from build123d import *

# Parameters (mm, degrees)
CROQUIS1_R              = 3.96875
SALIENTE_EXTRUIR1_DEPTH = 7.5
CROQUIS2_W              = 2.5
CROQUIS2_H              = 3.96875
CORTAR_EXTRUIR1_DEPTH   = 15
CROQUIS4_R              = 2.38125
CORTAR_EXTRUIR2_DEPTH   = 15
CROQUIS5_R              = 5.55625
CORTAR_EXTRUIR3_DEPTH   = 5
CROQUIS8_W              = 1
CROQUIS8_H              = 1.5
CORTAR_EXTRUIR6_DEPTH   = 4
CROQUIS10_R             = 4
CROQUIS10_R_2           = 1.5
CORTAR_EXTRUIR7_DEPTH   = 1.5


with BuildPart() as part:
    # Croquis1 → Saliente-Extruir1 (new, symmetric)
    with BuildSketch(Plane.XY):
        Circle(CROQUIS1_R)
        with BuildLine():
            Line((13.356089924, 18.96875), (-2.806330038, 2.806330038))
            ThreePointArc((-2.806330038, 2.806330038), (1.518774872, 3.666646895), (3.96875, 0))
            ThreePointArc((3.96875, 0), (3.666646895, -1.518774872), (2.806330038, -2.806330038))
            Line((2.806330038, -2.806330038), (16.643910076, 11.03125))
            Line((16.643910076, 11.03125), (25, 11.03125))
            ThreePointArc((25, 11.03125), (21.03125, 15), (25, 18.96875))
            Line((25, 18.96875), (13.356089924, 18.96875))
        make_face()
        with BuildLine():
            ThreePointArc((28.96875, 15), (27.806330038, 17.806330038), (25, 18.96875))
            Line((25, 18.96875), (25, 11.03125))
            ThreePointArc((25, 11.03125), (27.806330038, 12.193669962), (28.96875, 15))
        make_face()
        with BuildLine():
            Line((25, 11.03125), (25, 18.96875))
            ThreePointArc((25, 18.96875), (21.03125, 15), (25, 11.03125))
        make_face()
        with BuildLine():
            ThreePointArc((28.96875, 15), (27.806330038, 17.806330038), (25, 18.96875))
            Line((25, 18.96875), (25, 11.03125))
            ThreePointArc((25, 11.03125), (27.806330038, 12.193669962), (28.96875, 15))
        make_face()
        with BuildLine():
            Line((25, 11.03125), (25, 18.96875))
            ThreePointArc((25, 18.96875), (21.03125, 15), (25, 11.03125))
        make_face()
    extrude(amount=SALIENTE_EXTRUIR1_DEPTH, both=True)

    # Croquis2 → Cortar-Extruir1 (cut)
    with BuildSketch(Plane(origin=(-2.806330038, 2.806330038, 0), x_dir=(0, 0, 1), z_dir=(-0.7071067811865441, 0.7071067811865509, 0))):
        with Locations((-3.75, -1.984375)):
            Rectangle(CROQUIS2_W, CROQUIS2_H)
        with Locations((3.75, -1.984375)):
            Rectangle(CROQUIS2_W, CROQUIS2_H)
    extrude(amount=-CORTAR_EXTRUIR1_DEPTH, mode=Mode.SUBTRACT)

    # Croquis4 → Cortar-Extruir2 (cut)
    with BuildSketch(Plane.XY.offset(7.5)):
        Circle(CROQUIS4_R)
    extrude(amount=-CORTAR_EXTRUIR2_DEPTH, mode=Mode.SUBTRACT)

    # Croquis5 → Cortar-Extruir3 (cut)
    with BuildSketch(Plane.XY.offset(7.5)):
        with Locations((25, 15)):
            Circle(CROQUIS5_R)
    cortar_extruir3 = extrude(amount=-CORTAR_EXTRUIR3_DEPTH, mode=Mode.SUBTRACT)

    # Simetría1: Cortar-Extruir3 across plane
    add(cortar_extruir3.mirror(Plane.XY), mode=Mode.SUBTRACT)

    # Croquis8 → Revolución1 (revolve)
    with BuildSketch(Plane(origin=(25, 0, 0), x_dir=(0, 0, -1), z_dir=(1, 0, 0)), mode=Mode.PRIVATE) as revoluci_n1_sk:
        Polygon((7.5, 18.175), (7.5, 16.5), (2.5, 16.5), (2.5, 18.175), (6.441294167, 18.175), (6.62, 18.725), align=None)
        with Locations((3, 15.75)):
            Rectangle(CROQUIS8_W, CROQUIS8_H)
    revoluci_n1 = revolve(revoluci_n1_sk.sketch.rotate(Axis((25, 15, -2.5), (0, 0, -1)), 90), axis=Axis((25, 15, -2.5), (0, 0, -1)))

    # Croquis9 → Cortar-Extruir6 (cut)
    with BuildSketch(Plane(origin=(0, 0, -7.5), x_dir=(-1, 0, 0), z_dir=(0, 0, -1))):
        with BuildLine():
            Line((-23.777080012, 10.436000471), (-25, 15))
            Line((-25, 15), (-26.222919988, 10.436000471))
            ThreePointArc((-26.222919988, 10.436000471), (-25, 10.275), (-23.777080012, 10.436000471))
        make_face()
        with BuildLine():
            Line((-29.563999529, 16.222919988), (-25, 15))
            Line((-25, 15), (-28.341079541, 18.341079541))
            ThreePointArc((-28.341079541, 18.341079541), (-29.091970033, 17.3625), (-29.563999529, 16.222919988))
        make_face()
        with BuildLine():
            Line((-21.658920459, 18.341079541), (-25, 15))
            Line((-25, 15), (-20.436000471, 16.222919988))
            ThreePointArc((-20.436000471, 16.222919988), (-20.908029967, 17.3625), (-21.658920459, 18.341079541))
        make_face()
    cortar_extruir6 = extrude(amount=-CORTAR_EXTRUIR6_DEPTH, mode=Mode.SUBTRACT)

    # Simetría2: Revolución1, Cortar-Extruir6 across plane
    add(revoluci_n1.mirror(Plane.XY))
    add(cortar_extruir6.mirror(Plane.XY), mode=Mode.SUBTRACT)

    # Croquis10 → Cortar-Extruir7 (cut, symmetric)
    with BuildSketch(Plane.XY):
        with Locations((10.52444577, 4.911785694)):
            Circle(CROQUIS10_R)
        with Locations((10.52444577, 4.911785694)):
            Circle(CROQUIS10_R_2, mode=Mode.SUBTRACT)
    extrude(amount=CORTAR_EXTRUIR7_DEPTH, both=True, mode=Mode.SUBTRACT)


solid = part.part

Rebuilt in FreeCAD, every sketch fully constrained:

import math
import FreeCAD as App
import Part
import Sketcher
from FreeCAD import Vector
Q = App.Units.Quantity

doc = App.newDocument("Part")
body = doc.addObject("PartDesign::Body", "Body")

# Sketch on XY plane
sketch1 = doc.addObject("Sketcher::SketchObject", "Sketch")
body.addObject(sketch1)
sketch1.AttachmentSupport = (doc.XY_Plane, [""])
sketch1.MapMode = "FlatFace"
sketch1.addGeometry([
    Part.LineSegment(Vector(25, 19, 0), Vector(13.4, 19, 0)),  # 0
    Part.LineSegment(Vector(13.4, 19, 0), Vector(-2.8, 2.8, 0)),  # 1
    Part.ArcOfCircle(Part.Circle(Vector(0, 0, 0), Vector(0, 0, 1), 4), math.radians(135), math.radians(315)),  # 2
    Part.LineSegment(Vector(2.8, -2.8, 0), Vector(16.6, 11, 0)),  # 3
    Part.LineSegment(Vector(16.6, 11, 0), Vector(25, 11, 0)),  # 4
    Part.ArcOfCircle(Part.Circle(Vector(25, 15, 0), Vector(0, 0, 1), 4), math.radians(-90), math.radians(0)),  # 5
    Part.ArcOfCircle(Part.Circle(Vector(25, 15, 0), Vector(0, 0, 1), 4), math.radians(0), math.radians(90)),  # 6
], False)
sketch1.addConstraint([
    Sketcher.Constraint("Coincident", 0, 2, 1, 1),
    Sketcher.Constraint("Tangent", 1, 2, 2, 1),
    Sketcher.Constraint("Tangent", 2, 2, 3, 1),
    Sketcher.Constraint("Coincident", 3, 2, 4, 1),
    Sketcher.Constraint("Tangent", 4, 2, 5, 1),
    Sketcher.Constraint("Tangent", 5, 2, 6, 1),
    Sketcher.Constraint("Tangent", 6, 2, 0, 1),
    Sketcher.Constraint("Horizontal", 0),
    Sketcher.Constraint("Horizontal", 4),
    Sketcher.Constraint("Coincident", 2, 3, -1, 1),
    Sketcher.Constraint("Equal", 2, 5),
    Sketcher.Constraint("Equal", 5, 6),
    Sketcher.Constraint("Parallel", 1, 3),
    Sketcher.Constraint("Horizontal", 6, 3, 5, 2),
    Sketcher.Constraint("Angle", 1, Q("-135 deg")),
    Sketcher.Constraint("DistanceX", -1, 1, 5, 3, Q("25 mm")),
    Sketcher.Constraint("DistanceY", -1, 1, 5, 3, Q("15 mm")),
    Sketcher.Constraint("Radius", 2, Q("3.96875 mm")),
])
pad1 = doc.addObject("PartDesign::Pad", "Pad")
body.addObject(pad1)
pad1.Profile = sketch1
pad1.Length = 15
pad1.Midplane = True

# Sketch on an angled plane
sketch2 = doc.addObject("Sketcher::SketchObject", "Sketch001")
body.addObject(sketch2)
sketch2.Placement = App.Placement(Vector(-2.80633, 2.80633, 0), App.Rotation(Vector(0, 0, 1), Vector(0.707106781, 0.707106781, 0), Vector(-0.707106781, 0.707106781, 0), "ZXY"))
sketch2.addGeometry([
    Part.LineSegment(Vector(-5, 0, 0), Vector(-5, -4, 0)),  # 0
    Part.LineSegment(Vector(-5, -4, 0), Vector(-2.5, -4, 0)),  # 1
    Part.LineSegment(Vector(-2.5, -4, 0), Vector(-2.5, 0, 0)),  # 2
    Part.LineSegment(Vector(-2.5, 0, 0), Vector(-5, 0, 0)),  # 3
    Part.LineSegment(Vector(2.5, 0, 0), Vector(2.5, -4, 0)),  # 4
    Part.LineSegment(Vector(2.5, -4, 0), Vector(5, -4, 0)),  # 5
    Part.LineSegment(Vector(5, -4, 0), Vector(5, 0, 0)),  # 6
    Part.LineSegment(Vector(5, 0, 0), Vector(2.5, 0, 0)),  # 7
], False)
sketch2.addConstraint([
    Sketcher.Constraint("Coincident", 0, 2, 1, 1),
    Sketcher.Constraint("Coincident", 1, 2, 2, 1),
    Sketcher.Constraint("Coincident", 2, 2, 3, 1),
    Sketcher.Constraint("Coincident", 3, 2, 0, 1),
    Sketcher.Constraint("Coincident", 4, 2, 5, 1),
    Sketcher.Constraint("Coincident", 5, 2, 6, 1),
    Sketcher.Constraint("Coincident", 6, 2, 7, 1),
    Sketcher.Constraint("Coincident", 7, 2, 4, 1),
    Sketcher.Constraint("Vertical", 0),
    Sketcher.Constraint("Horizontal", 1),
    Sketcher.Constraint("Vertical", 2),
    Sketcher.Constraint("Horizontal", 3),
    Sketcher.Constraint("Vertical", 4),
    Sketcher.Constraint("Horizontal", 5),
    Sketcher.Constraint("Vertical", 6),
    Sketcher.Constraint("Horizontal", 7),
    Sketcher.Constraint("Symmetric", 3, 2, 6, 2, -1, 1),
    Sketcher.Constraint("Symmetric", 1, 2, 4, 2, -2),
    Sketcher.Constraint("PointOnObject", 2, 2, -1),
    Sketcher.Constraint("DistanceX", 1, 1, 1, 2, Q("2.5 mm")),
    Sketcher.Constraint("DistanceX", 0, 2, -1, 1, Q("5 mm")),
    Sketcher.Constraint("DistanceY", 0, 2, 0, 1, Q("3.96875 mm")),
])
pocket1 = doc.addObject("PartDesign::Pocket", "Pocket")
body.addObject(pocket1)
pocket1.Profile = sketch2
pocket1.Length = 15

# Sketch on XY plane
sketch3 = doc.addObject("Sketcher::SketchObject", "Sketch002")
body.addObject(sketch3)
sketch3.AttachmentSupport = (doc.XY_Plane, [""])
sketch3.MapMode = "FlatFace"
sketch3.AttachmentOffset = App.Placement(Vector(0, 0, 7.5), App.Rotation())
sketch3.addGeometry(Part.Circle(Vector(0, 0, 0), Vector(0, 0, 1), 2.4), False)
sketch3.addConstraint([
    Sketcher.Constraint("Coincident", 0, 3, -1, 1),
    Sketcher.Constraint("Diameter", 0, Q("4.7625 mm")),
])
pocket2 = doc.addObject("PartDesign::Pocket", "Pocket001")
body.addObject(pocket2)
pocket2.Profile = sketch3
pocket2.Length = 15

# Sketch on XY plane
sketch4 = doc.addObject("Sketcher::SketchObject", "Sketch003")
body.addObject(sketch4)
sketch4.AttachmentSupport = (doc.XY_Plane, [""])
sketch4.MapMode = "FlatFace"
sketch4.AttachmentOffset = App.Placement(Vector(0, 0, 7.5), App.Rotation())
sketch4.addGeometry(Part.Circle(Vector(25, 15, 0), Vector(0, 0, 1), 6), False)
sketch4.addConstraint([
    Sketcher.Constraint("DistanceX", -1, 1, 0, 3, Q("25 mm")),
    Sketcher.Constraint("DistanceY", -1, 1, 0, 3, Q("15 mm")),
    Sketcher.Constraint("Diameter", 0, Q("11.1125 mm")),
])
pocket3 = doc.addObject("PartDesign::Pocket", "Pocket002")
body.addObject(pocket3)
pocket3.Profile = sketch4
pocket3.Length = 5
doc.recompute()

mirrored = doc.addObject("PartDesign::Mirrored", "Mirrored")
body.addObject(mirrored)
mirrored.Originals = [pocket3]
mirrored.MirrorPlane = (doc.XY_Plane, [""])
body.Tip = mirrored

# Sketch on YZ plane
sketch5 = doc.addObject("Sketcher::SketchObject", "Sketch004")
body.addObject(sketch5)
sketch5.AttachmentSupport = (doc.YZ_Plane, [""])
sketch5.MapMode = "FlatFace"
sketch5.AttachmentOffset = App.Placement(Vector(0, 0, 25), App.Rotation())
sketch5.addGeometry([
    Part.LineSegment(Vector(16.5, -7.5, 0), Vector(18.2, -7.5, 0)),  # 0
    Part.LineSegment(Vector(18.2, -7.5, 0), Vector(18.7, -6.6, 0)),  # 1
    Part.LineSegment(Vector(18.7, -6.6, 0), Vector(18.2, -6.4, 0)),  # 2
    Part.LineSegment(Vector(18.2, -6.4, 0), Vector(18.2, -2.5, 0)),  # 3
    Part.LineSegment(Vector(18.2, -2.5, 0), Vector(15, -2.5, 0)),  # 4
    Part.LineSegment(Vector(15, -2.5, 0), Vector(15, -3.5, 0)),  # 5
    Part.LineSegment(Vector(15, -3.5, 0), Vector(16.5, -3.5, 0)),  # 6
    Part.LineSegment(Vector(16.5, -3.5, 0), Vector(16.5, -7.5, 0)),  # 7
], False)
sketch5.addGeometry(Part.LineSegment(Vector(15, -2.5, 0), Vector(15, -7.5, 0)), True)  # axis
sketch5.addConstraint([
    Sketcher.Constraint("Coincident", 0, 2, 1, 1),
    Sketcher.Constraint("Coincident", 1, 2, 2, 1),
    Sketcher.Constraint("Coincident", 2, 2, 3, 1),
    Sketcher.Constraint("Coincident", 3, 2, 4, 1),
    Sketcher.Constraint("Coincident", 4, 2, 5, 1),
    Sketcher.Constraint("Coincident", 5, 2, 6, 1),
    Sketcher.Constraint("Coincident", 6, 2, 7, 1),
    Sketcher.Constraint("Coincident", 7, 2, 0, 1),
    Sketcher.Constraint("Horizontal", 0),
    Sketcher.Constraint("Vertical", 3),
    Sketcher.Constraint("Horizontal", 4),
    Sketcher.Constraint("Vertical", 5),
    Sketcher.Constraint("Horizontal", 6),
    Sketcher.Constraint("Vertical", 7),
    Sketcher.Constraint("Vertical", 8),
    Sketcher.Constraint("Coincident", 8, 1, 4, 2),
    Sketcher.Constraint("Horizontal", 7, 2, 8, 2),
    Sketcher.Constraint("Vertical", 0, 2, 2, 2),
    Sketcher.Constraint("DistanceY", 5, 2, 5, 1, Q("1 mm")),
    Sketcher.Constraint("DistanceY", 7, 2, 7, 1, Q("4 mm")),
    Sketcher.Constraint("Angle", 2, Q("162 deg")),
    Sketcher.Constraint("DistanceX", 6, 1, 6, 2, Q("1.5 mm")),
    Sketcher.Constraint("DistanceX", -1, 1, 4, 2, Q("15 mm")),
    Sketcher.Constraint("DistanceY", 0, 2, -1, 1, Q("7.5 mm")),
    Sketcher.Constraint("DistanceX", 0, 1, 0, 2, Q("1.675 mm")),
    Sketcher.Constraint("DistanceY", 1, 2, -1, 1, Q("6.62 mm")),
    Sketcher.Constraint("DistanceX", 0, 2, 1, 2, Q("0.55 mm")),
])
revolution = doc.addObject("PartDesign::Revolution", "Revolution")
body.addObject(revolution)
revolution.Profile = sketch5
revolution.ReferenceAxis = (sketch5, ["Axis0"])
revolution.Angle = 360

# Sketch on XY plane
sketch6 = doc.addObject("Sketcher::SketchObject", "Sketch005")
body.addObject(sketch6)
sketch6.AttachmentSupport = (doc.XY_Plane, [""])
sketch6.MapMode = "FlatFace"
sketch6.AttachmentOffset = App.Placement(Vector(0, 0, -7.5), App.Rotation())
sketch6.addGeometry([
    Part.LineSegment(Vector(23.8, 10.4, 0), Vector(25, 15, 0)),  # 0
    Part.LineSegment(Vector(25, 15, 0), Vector(26.2, 10.4, 0)),  # 1
    Part.ArcOfCircle(Part.Circle(Vector(25, 15, 0), Vector(0, 0, 1), 4.7), math.radians(-105), math.radians(-75)),  # 2
    Part.LineSegment(Vector(29.6, 16.2, 0), Vector(25, 15, 0)),  # 3
    Part.LineSegment(Vector(25, 15, 0), Vector(28.3, 18.3, 0)),  # 4
    Part.ArcOfCircle(Part.Circle(Vector(25, 15, 0), Vector(0, 0, 1), 4.7), math.radians(15), math.radians(45)),  # 5
    Part.LineSegment(Vector(21.7, 18.3, 0), Vector(25, 15, 0)),  # 6
    Part.LineSegment(Vector(25, 15, 0), Vector(20.4, 16.2, 0)),  # 7
    Part.ArcOfCircle(Part.Circle(Vector(25, 15, 0), Vector(0, 0, 1), 4.7), math.radians(135), math.radians(165)),  # 8
], False)
sketch6.addConstraint([
    Sketcher.Constraint("Coincident", 0, 2, 1, 1),
    Sketcher.Constraint("Coincident", 1, 2, 2, 2),
    Sketcher.Constraint("Coincident", 2, 1, 0, 1),
    Sketcher.Constraint("Coincident", 3, 2, 4, 1),
    Sketcher.Constraint("Coincident", 4, 2, 5, 2),
    Sketcher.Constraint("Coincident", 5, 1, 3, 1),
    Sketcher.Constraint("Coincident", 6, 2, 7, 1),
    Sketcher.Constraint("Coincident", 7, 2, 8, 2),
    Sketcher.Constraint("Coincident", 8, 1, 6, 1),
    Sketcher.Constraint("Coincident", 5, 3, 2, 3),
    Sketcher.Constraint("Coincident", 8, 3, 2, 3),
    Sketcher.Constraint("Coincident", 0, 2, 2, 3),
    Sketcher.Constraint("Coincident", 3, 2, 2, 3),
    Sketcher.Constraint("Coincident", 6, 2, 2, 3),
    Sketcher.Constraint("Equal", 2, 5),
    Sketcher.Constraint("Equal", 5, 8),
    Sketcher.Constraint("Perpendicular", 1, 3),
    Sketcher.Constraint("Perpendicular", 4, 6),
    Sketcher.Constraint("Perpendicular", 0, 7),
    Sketcher.Constraint("Horizontal", 1, 2, 2, 1),
    Sketcher.Constraint("Horizontal", 4, 2, 8, 1),
    Sketcher.Constraint("Angle", 0, Q("75 deg")),
    Sketcher.Constraint("DistanceX", -1, 1, 2, 3, Q("25 mm")),
    Sketcher.Constraint("DistanceY", -1, 1, 2, 3, Q("15 mm")),
    Sketcher.Constraint("Radius", 2, Q("4.725 mm")),
])
pocket4 = doc.addObject("PartDesign::Pocket", "Pocket003")
body.addObject(pocket4)
pocket4.Profile = sketch6
pocket4.Length = 4
pocket4.Reversed = True
doc.recompute()

mirrored2 = doc.addObject("PartDesign::Mirrored", "Mirrored001")
body.addObject(mirrored2)
mirrored2.Originals = [revolution, pocket4]
mirrored2.MirrorPlane = (doc.XY_Plane, [""])
body.Tip = mirrored2

# Sketch on XY plane
sketch7 = doc.addObject("Sketcher::SketchObject", "Sketch006")
body.addObject(sketch7)
sketch7.AttachmentSupport = (doc.XY_Plane, [""])
sketch7.MapMode = "FlatFace"
sketch7.addGeometry([
    Part.Circle(Vector(10.5, 4.9, 0), Vector(0, 0, 1), 4),
    Part.Circle(Vector(10.5, 4.9, 0), Vector(0, 0, 1), 1.5),
], False)
sketch7.addConstraint([
    Sketcher.Constraint("Coincident", 1, 3, 0, 3),
    Sketcher.Constraint("Diameter", 0, Q("8 mm")),
    Sketcher.Constraint("Diameter", 1, Q("3 mm")),
    Sketcher.Constraint("DistanceX", -1, 1, 0, 3, Q("10.524446 mm")),
    Sketcher.Constraint("DistanceY", -1, 1, 0, 3, Q("4.911786 mm")),
])
pocket5 = doc.addObject("PartDesign::Pocket", "Pocket004")
body.addObject(pocket5)
pocket5.Profile = sketch7
pocket5.Length = 3
pocket5.Midplane = True

doc.recompute()
